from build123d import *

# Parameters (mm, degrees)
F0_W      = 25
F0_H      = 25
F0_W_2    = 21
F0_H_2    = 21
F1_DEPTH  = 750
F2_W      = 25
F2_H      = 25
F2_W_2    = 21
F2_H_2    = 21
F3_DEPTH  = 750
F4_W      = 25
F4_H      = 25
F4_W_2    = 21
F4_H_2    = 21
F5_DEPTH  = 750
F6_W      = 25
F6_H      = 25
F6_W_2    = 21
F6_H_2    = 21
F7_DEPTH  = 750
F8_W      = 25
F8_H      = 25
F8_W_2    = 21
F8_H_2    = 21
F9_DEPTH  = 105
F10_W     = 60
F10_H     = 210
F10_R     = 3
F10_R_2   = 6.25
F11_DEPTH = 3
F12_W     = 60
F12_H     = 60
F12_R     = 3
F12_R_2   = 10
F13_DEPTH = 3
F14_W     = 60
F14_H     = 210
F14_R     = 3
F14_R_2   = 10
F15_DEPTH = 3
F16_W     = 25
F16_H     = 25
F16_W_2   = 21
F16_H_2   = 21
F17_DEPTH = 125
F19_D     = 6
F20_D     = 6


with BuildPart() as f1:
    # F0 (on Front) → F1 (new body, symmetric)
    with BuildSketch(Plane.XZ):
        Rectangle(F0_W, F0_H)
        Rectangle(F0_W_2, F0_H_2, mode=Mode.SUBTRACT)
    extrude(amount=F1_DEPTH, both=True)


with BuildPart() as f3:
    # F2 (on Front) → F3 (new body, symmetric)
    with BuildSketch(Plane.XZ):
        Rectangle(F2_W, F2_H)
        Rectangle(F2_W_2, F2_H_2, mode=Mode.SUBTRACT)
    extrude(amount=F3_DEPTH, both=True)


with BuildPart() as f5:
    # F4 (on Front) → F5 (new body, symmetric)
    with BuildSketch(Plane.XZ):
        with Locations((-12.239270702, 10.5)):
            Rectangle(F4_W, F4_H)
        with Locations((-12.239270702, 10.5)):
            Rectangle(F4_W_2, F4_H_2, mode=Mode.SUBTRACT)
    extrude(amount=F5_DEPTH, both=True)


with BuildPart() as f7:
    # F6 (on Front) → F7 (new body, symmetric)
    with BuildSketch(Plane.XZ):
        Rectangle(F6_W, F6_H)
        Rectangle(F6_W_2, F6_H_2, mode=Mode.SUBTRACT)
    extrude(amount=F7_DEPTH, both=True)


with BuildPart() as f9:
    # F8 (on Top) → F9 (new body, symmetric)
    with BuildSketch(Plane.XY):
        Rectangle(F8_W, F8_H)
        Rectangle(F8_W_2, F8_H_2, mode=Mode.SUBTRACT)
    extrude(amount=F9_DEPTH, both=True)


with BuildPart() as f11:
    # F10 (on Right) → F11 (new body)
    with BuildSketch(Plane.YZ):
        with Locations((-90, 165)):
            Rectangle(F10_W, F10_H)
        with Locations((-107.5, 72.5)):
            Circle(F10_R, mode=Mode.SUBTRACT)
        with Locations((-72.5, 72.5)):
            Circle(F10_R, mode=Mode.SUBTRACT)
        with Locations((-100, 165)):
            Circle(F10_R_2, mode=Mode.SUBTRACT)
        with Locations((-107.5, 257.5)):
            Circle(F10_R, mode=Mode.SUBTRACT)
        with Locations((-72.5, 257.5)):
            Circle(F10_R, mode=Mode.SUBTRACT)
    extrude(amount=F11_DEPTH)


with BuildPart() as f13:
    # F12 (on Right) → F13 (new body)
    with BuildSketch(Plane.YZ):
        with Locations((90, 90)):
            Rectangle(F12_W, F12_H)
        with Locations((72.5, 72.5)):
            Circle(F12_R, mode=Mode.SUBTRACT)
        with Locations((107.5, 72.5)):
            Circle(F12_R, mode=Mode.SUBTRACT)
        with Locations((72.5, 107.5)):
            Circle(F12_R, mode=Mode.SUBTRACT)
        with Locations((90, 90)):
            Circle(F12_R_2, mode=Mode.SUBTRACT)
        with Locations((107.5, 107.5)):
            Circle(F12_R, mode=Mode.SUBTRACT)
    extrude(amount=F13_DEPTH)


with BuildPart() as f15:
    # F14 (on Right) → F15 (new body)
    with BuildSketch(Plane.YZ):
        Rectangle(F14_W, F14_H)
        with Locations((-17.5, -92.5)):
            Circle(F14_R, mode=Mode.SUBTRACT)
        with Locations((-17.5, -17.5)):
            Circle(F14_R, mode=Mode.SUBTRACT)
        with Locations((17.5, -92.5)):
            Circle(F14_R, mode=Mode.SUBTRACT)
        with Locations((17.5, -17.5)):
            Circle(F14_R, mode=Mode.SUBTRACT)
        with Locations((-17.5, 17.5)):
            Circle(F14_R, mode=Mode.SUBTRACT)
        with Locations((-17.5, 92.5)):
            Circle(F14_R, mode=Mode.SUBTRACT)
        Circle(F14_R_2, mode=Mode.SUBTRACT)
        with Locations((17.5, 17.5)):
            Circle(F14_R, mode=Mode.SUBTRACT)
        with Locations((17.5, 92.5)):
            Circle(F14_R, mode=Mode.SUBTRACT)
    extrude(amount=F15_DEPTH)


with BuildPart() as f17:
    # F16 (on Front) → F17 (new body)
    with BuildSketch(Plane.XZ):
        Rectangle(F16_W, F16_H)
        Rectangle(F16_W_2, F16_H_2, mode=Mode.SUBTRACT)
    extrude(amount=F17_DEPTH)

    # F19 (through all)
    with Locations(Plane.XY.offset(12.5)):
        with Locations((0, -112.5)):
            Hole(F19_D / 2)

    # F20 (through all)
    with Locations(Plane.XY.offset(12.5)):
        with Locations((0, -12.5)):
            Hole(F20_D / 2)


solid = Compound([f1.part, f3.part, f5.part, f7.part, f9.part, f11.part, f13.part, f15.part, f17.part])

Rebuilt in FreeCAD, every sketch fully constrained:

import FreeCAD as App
import Part
import Sketcher


def add_polygon(sketch, points):
    """Adds a closed chain of lines whose ends are joined by coincident constraints."""
    first, n = sketch.GeometryCount, len(points)
    for a, b in zip(points, points[1:] + points[:1]):
        sketch.addGeometry(Part.LineSegment(App.Vector(*a, 0), App.Vector(*b, 0)), False)
    for i in range(n):
        sketch.addConstraint(Sketcher.Constraint("Coincident", first + i, 2, first + (i + 1) % n, 1))

doc = App.newDocument("Part")
body = doc.addObject("PartDesign::Body", "Body")

# Sketch on XZ plane
sketch1 = body.newObject("Sketcher::SketchObject", "Sketch")
sketch1.AttachmentSupport = (doc.getObject("XZ_Plane"), [""])
sketch1.MapMode = "FlatFace"
add_polygon(sketch1, [(-12.5, 12.5), (-12.5, -12.5), (12.5, -12.5), (12.5, 12.5)])  # lines 0-3
add_polygon(sketch1, [(10.5, -10.5), (-10.5, -10.5), (-10.5, 10.5), (10.5, 10.5)])  # lines 4-7
sketch1.addConstraint([
    Sketcher.Constraint("Vertical", 0),
    Sketcher.Constraint("Horizontal", 1),
    Sketcher.Constraint("Vertical", 2),
    Sketcher.Constraint("Horizontal", 3),
    Sketcher.Constraint("Horizontal", 4),
    Sketcher.Constraint("Vertical", 5),
    Sketcher.Constraint("Horizontal", 6),
    Sketcher.Constraint("Vertical", 7),
    Sketcher.Constraint("Symmetric", 0, 2, 2, 2, -1, 1),
    Sketcher.Constraint("Symmetric", 4, 2, 6, 2, -1, 1),
    Sketcher.Constraint("Equal", 3, 0),
    Sketcher.Constraint("Equal", 6, 5),
    Sketcher.Constraint("DistanceX", 1, 1, 1, 2, 25.0),
    Sketcher.Constraint("DistanceX", 4, 2, 4, 1, 21.0),
])
pad1 = body.newObject("PartDesign::Pad", "Pad")
pad1.Profile = sketch1
pad1.Length = 1500
pad1.Midplane = True
body2 = doc.addObject("PartDesign::Body", "Body001")

# Sketch on XZ plane
sketch2 = body2.newObject("Sketcher::SketchObject", "Sketch001")
sketch2.AttachmentSupport = (doc.getObject("XZ_Plane001"), [""])
sketch2.MapMode = "FlatFace"
add_polygon(sketch2, [(-12.5, 12.5), (-12.5, -12.5), (12.5, -12.5), (12.5, 12.5)])  # lines 0-3
add_polygon(sketch2, [(10.5, -10.5), (-10.5, -10.5), (-10.5, 10.5), (10.5, 10.5)])  # lines 4-7
sketch2.addConstraint([
    Sketcher.Constraint("Vertical", 0),
    Sketcher.Constraint("Horizontal", 1),
    Sketcher.Constraint("Vertical", 2),
    Sketcher.Constraint("Horizontal", 3),
    Sketcher.Constraint("Horizontal", 4),
    Sketcher.Constraint("Vertical", 5),
    Sketcher.Constraint("Horizontal", 6),
    Sketcher.Constraint("Vertical", 7),
    Sketcher.Constraint("Symmetric", 0, 2, 2, 2, -1, 1),
    Sketcher.Constraint("Symmetric", 4, 2, 6, 2, -1, 1),
    Sketcher.Constraint("Equal", 3, 0),
    Sketcher.Constraint("Equal", 6, 5),
    Sketcher.Constraint("DistanceX", 1, 1, 1, 2, 25.0),
    Sketcher.Constraint("DistanceX", 4, 2, 4, 1, 21.0),
])
pad2 = body2.newObject("PartDesign::Pad", "Pad001")
pad2.Profile = sketch2
pad2.Length = 1500
pad2.Midplane = True
body3 = doc.addObject("PartDesign::Body", "Body002")

# Sketch on XZ plane
sketch3 = body3.newObject("Sketcher::SketchObject", "Sketch002")
sketch3.AttachmentSupport = (doc.getObject("XZ_Plane002"), [""])
sketch3.MapMode = "FlatFace"
add_polygon(sketch3, [(-24.739271, 23), (-24.739271, -2), (0.260729, -2), (0.260729, 23)])  # lines 0-3
add_polygon(sketch3, [(-1.739271, 0), (-22.739271, 0), (-22.739271, 21), (-1.739271, 21)])  # lines 4-7
sketch3.addConstraint([
    Sketcher.Constraint("Vertical", 0),
    Sketcher.Constraint("Horizontal", 1),
    Sketcher.Constraint("Vertical", 2),
    Sketcher.Constraint("Horizontal", 3),
    Sketcher.Constraint("Horizontal", 4),
    Sketcher.Constraint("Vertical", 5),
    Sketcher.Constraint("Horizontal", 6),
    Sketcher.Constraint("Vertical", 7),
    Sketcher.Constraint("PointOnObject", 4, 2, -1),
    Sketcher.Constraint("Equal", 3, 0),
    Sketcher.Constraint("Equal", 6, 5),
    Sketcher.Constraint("DistanceX", 1, 1, 1, 2, 25.0),
    Sketcher.Constraint("DistanceX", 4, 2, 4, 1, 21.0),
    Sketcher.Constraint("DistanceY", 0, 2, -1, 1, 2.0),
    Sketcher.Constraint("DistanceX", 0, 2, 4, 2, 2.0),
    Sketcher.Constraint("DistanceX", 0, 2, -1, 1, 24.739271),
])
pad3 = body3.newObject("PartDesign::Pad", "Pad002")
pad3.Profile = sketch3
pad3.Length = 1500
pad3.Midplane = True
body4 = doc.addObject("PartDesign::Body", "Body003")

# Sketch on XZ plane
sketch4 = body4.newObject("Sketcher::SketchObject", "Sketch003")
sketch4.AttachmentSupport = (doc.getObject("XZ_Plane003"), [""])
sketch4.MapMode = "FlatFace"
add_polygon(sketch4, [(-12.5, 12.5), (-12.5, -12.5), (12.5, -12.5), (12.5, 12.5)])  # lines 0-3
add_polygon(sketch4, [(10.5, -10.5), (-10.5, -10.5), (-10.5, 10.5), (10.5, 10.5)])  # lines 4-7
sketch4.addConstraint([
    Sketcher.Constraint("Vertical", 0),
    Sketcher.Constraint("Horizontal", 1),
    Sketcher.Constraint("Vertical", 2),
    Sketcher.Constraint("Horizontal", 3),
    Sketcher.Constraint("Horizontal", 4),
    Sketcher.Constraint("Vertical", 5),
    Sketcher.Constraint("Horizontal", 6),
    Sketcher.Constraint("Vertical", 7),
    Sketcher.Constraint("Symmetric", 0, 2, 2, 2, -1, 1),
    Sketcher.Constraint("Symmetric", 4, 2, 6, 2, -1, 1),
    Sketcher.Constraint("Equal", 3, 0),
    Sketcher.Constraint("Equal", 6, 5),
    Sketcher.Constraint("DistanceX", 1, 1, 1, 2, 25.0),
    Sketcher.Constraint("DistanceX", 4, 2, 4, 1, 21.0),
])
pad4 = body4.newObject("PartDesign::Pad", "Pad003")
pad4.Profile = sketch4
pad4.Length = 1500
pad4.Midplane = True
body5 = doc.addObject("PartDesign::Body", "Body004")

# Sketch on XY plane
sketch5 = body5.newObject("Sketcher::SketchObject", "Sketch004")
sketch5.AttachmentSupport = (doc.getObject("XY_Plane004"), [""])
sketch5.MapMode = "FlatFace"
add_polygon(sketch5, [(-12.5, 12.5), (-12.5, -12.5), (12.5, -12.5), (12.5, 12.5)])  # lines 0-3
add_polygon(sketch5, [(10.5, -10.5), (-10.5, -10.5), (-10.5, 10.5), (10.5, 10.5)])  # lines 4-7
sketch5.addConstraint([
    Sketcher.Constraint("Vertical", 0),
    Sketcher.Constraint("Horizontal", 1),
    Sketcher.Constraint("Vertical", 2),
    Sketcher.Constraint("Horizontal", 3),
    Sketcher.Constraint("Horizontal", 4),
    Sketcher.Constraint("Vertical", 5),
    Sketcher.Constraint("Horizontal", 6),
    Sketcher.Constraint("Vertical", 7),
    Sketcher.Constraint("Symmetric", 0, 2, 2, 2, -1, 1),
    Sketcher.Constraint("Symmetric", 4, 2, 6, 2, -1, 1),
    Sketcher.Constraint("Equal", 3, 0),
    Sketcher.Constraint("Equal", 6, 5),
    Sketcher.Constraint("DistanceX", 1, 1, 1, 2, 25.0),
    Sketcher.Constraint("DistanceX", 4, 2, 4, 1, 21.0),
])
pad5 = body5.newObject("PartDesign::Pad", "Pad004")
pad5.Profile = sketch5
pad5.Length = 210
pad5.Midplane = True
body6 = doc.addObject("PartDesign::Body", "Body005")

# Sketch on YZ plane
sketch6 = body6.newObject("Sketcher::SketchObject", "Sketch005")
sketch6.AttachmentSupport = (doc.getObject("YZ_Plane005"), [""])
sketch6.MapMode = "FlatFace"
add_polygon(sketch6, [(-120, 270), (-120, 60), (-60, 60), (-60, 270)])  # lines 0-3
sketch6.addGeometry(Part.Circle(App.Vector(-107.5, 72.5, 0), App.Vector(0, 0, 1), 3), False)  # 4
sketch6.addGeometry(Part.Circle(App.Vector(-72.5, 72.5, 0), App.Vector(0, 0, 1), 3), False)  # 5
sketch6.addGeometry(Part.Circle(App.Vector(-100, 165, 0), App.Vector(0, 0, 1), 6.25), False)  # 6
sketch6.addGeometry(Part.Circle(App.Vector(-107.5, 257.5, 0), App.Vector(0, 0, 1), 3), False)  # 7
sketch6.addGeometry(Part.Circle(App.Vector(-72.5, 257.5, 0), App.Vector(0, 0, 1), 3), False)  # 8
sketch6.addConstraint([
    Sketcher.Constraint("Vertical", 0),
    Sketcher.Constraint("Horizontal", 1),
    Sketcher.Constraint("Vertical", 2),
    Sketcher.Constraint("Horizontal", 3),
    Sketcher.Constraint("Equal", 4, 5),
    Sketcher.Constraint("Equal", 5, 7),
    Sketcher.Constraint("Equal", 7, 8),
    Sketcher.Constraint("Horizontal", 4, 3, 5, 3),
    Sketcher.Constraint("Horizontal", 7, 3, 8, 3),
    Sketcher.Constraint("Vertical", 4, 3, 7, 3),
    Sketcher.Constraint("Vertical", 5, 3, 8, 3),
    Sketcher.Constraint("Diameter", 4, 6.0),
    Sketcher.Constraint("Diameter", 6, 12.5),
    Sketcher.Constraint("DistanceX", 1, 1, 1, 2, 60.0),
    Sketcher.Constraint("DistanceY", 0, 2, 0, 1, 210.0),
    Sketcher.Constraint("DistanceX", 6, 3, -1, 1, 100.0),
    Sketcher.Constraint("DistanceY", -1, 1, 6, 3, 165.0),
    Sketcher.Constraint("DistanceX", 0, 2, -1, 1, 120.0),
    Sketcher.Constraint("DistanceY", -1, 1, 0, 2, 60.0),
    Sketcher.Constraint("DistanceX", 4, 3, 5, 3, 35.0),
    Sketcher.Constraint("DistanceY", 4, 3, 7, 3, 185.0),
    Sketcher.Constraint("DistanceX", 4, 3, -1, 1, 107.5),
    Sketcher.Constraint("DistanceY", -1, 1, 4, 3, 72.5),
])
pad6 = body6.newObject("PartDesign::Pad", "Pad005")
pad6.Profile = sketch6
pad6.Length = 3
body7 = doc.addObject("PartDesign::Body", "Body006")

# Sketch on YZ plane
sketch7 = body7.newObject("Sketcher::SketchObject", "Sketch006")
sketch7.AttachmentSupport = (doc.getObject("YZ_Plane006"), [""])
sketch7.MapMode = "FlatFace"
add_polygon(sketch7, [(60, 120), (60, 60), (120, 60), (120, 120)])  # lines 0-3
sketch7.addGeometry(Part.Circle(App.Vector(72.5, 72.5, 0), App.Vector(0, 0, 1), 3), False)  # 4
sketch7.addGeometry(Part.Circle(App.Vector(107.5, 72.5, 0), App.Vector(0, 0, 1), 3), False)  # 5
sketch7.addGeometry(Part.Circle(App.Vector(72.5, 107.5, 0), App.Vector(0, 0, 1), 3), False)  # 6
sketch7.addGeometry(Part.Circle(App.Vector(90, 90, 0), App.Vector(0, 0, 1), 10), False)  # 7
sketch7.addGeometry(Part.Circle(App.Vector(107.5, 107.5, 0), App.Vector(0, 0, 1), 3), False)  # 8
sketch7.addConstraint([
    Sketcher.Constraint("Vertical", 0),
    Sketcher.Constraint("Horizontal", 1),
    Sketcher.Constraint("Vertical", 2),
    Sketcher.Constraint("Horizontal", 3),
    Sketcher.Constraint("Equal", 4, 5),
    Sketcher.Constraint("Equal", 5, 6),
    Sketcher.Constraint("Equal", 6, 8),
    Sketcher.Constraint("Horizontal", 4, 3, 5, 3),
    Sketcher.Constraint("Horizontal", 6, 3, 8, 3),
    Sketcher.Constraint("Vertical", 4, 3, 6, 3),
    Sketcher.Constraint("Vertical", 5, 3, 8, 3),
    Sketcher.Constraint("Equal", 3, 0),
    Sketcher.Constraint("Diameter", 4, 6.0),
    Sketcher.Constraint("Diameter", 7, 20.0),
    Sketcher.Constraint("DistanceX", 1, 1, 1, 2, 60.0),
    Sketcher.Constraint("DistanceX", -1, 1, 7, 3, 90.0),
    Sketcher.Constraint("DistanceY", -1, 1, 7, 3, 90.0),
    Sketcher.Constraint("DistanceX", -1, 1, 0, 2, 60.0),
    Sketcher.Constraint("DistanceY", -1, 1, 0, 2, 60.0),
    Sketcher.Constraint("DistanceX", 4, 3, 5, 3, 35.0),
    Sketcher.Constraint("DistanceY", 4, 3, 6, 3, 35.0),
    Sketcher.Constraint("DistanceX", -1, 1, 4, 3, 72.5),
    Sketcher.Constraint("DistanceY", -1, 1, 4, 3, 72.5),
])
pad7 = body7.newObject("PartDesign::Pad", "Pad006")
pad7.Profile = sketch7
pad7.Length = 3
body8 = doc.addObject("PartDesign::Body", "Body007")

# Sketch on YZ plane
sketch8 = body8.newObject("Sketcher::SketchObject", "Sketch007")
sketch8.AttachmentSupport = (doc.getObject("YZ_Plane007"), [""])
sketch8.MapMode = "FlatFace"
add_polygon(sketch8, [(-30, 105), (-30, -105), (30, -105), (30, 105)])  # lines 0-3
sketch8.addGeometry(Part.Circle(App.Vector(-17.5, -92.5, 0), App.Vector(0, 0, 1), 3), False)  # 4
sketch8.addGeometry(Part.Circle(App.Vector(-17.5, -17.5, 0), App.Vector(0, 0, 1), 3), False)  # 5
sketch8.addGeometry(Part.Circle(App.Vector(17.5, -92.5, 0), App.Vector(0, 0, 1), 3), False)  # 6
sketch8.addGeometry(Part.Circle(App.Vector(17.5, -17.5, 0), App.Vector(0, 0, 1), 3), False)  # 7
sketch8.addGeometry(Part.Circle(App.Vector(-17.5, 17.5, 0), App.Vector(0, 0, 1), 3), False)  # 8
sketch8.addGeometry(Part.Circle(App.Vector(-17.5, 92.5, 0), App.Vector(0, 0, 1), 3), False)  # 9
sketch8.addGeometry(Part.Circle(App.Vector(0, 0, 0), App.Vector(0, 0, 1), 10), False)  # 10
sketch8.addGeometry(Part.Circle(App.Vector(17.5, 17.5, 0), App.Vector(0, 0, 1), 3), False)  # 11
sketch8.addGeometry(Part.Circle(App.Vector(17.5, 92.5, 0), App.Vector(0, 0, 1), 3), False)  # 12
sketch8.addConstraint([
    Sketcher.Constraint("Vertical", 0),
    Sketcher.Constraint("Horizontal", 1),
    Sketcher.Constraint("Vertical", 2),
    Sketcher.Constraint("Horizontal", 3),
    Sketcher.Constraint("Coincident", 10, 3, -1, 1),
    Sketcher.Constraint("Equal", 4, 5),
    Sketcher.Constraint("Equal", 5, 6),
    Sketcher.Constraint("Equal", 6, 7),
    Sketcher.Constraint("Equal", 7, 8),
    Sketcher.Constraint("Equal", 8, 9),
    Sketcher.Constraint("Equal", 9, 11),
    Sketcher.Constraint("Equal", 11, 12),
    Sketcher.Constraint("Symmetric", 7, 3, 8, 3, -1, 1),
    Sketcher.Constraint("Symmetric", 6, 3, 9, 3, -1, 1),
    Sketcher.Constraint("Symmetric", 5, 3, 11, 3, -1, 1),
    Sketcher.Constraint("Symmetric", 4, 3, 12, 3, -1, 1),
    Sketcher.Constraint("Symmetric", 0, 2, 2, 2, -1, 1),
    Sketcher.Constraint("Symmetric", 4, 3, 6, 3, -2),
    Sketcher.Constraint("Symmetric", 5, 3, 7, 3, -2),
    Sketcher.Constraint("Vertical", 4, 3, 5, 3),
    Sketcher.Constraint("Diameter", 4, 6.0),
    Sketcher.Constraint("Diameter", 10, 20.0),
    Sketcher.Constraint("DistanceX", 1, 1, 1, 2, 60.0),
    Sketcher.Constraint("DistanceY", 0, 2, 0, 1, 210.0),
    Sketcher.Constraint("DistanceY", 4, 3, 5, 3, 75.0),
    Sketcher.Constraint("DistanceX", 4, 3, 6, 3, 35.0),
    Sketcher.Constraint("DistanceY", 5, 3, 8, 3, 35.0),
])
pad8 = body8.newObject("PartDesign::Pad", "Pad007")
pad8.Profile = sketch8
pad8.Length = 3
body9 = doc.addObject("PartDesign::Body", "Body008")

# Sketch on XZ plane
sketch9 = body9.newObject("Sketcher::SketchObject", "Sketch008")
sketch9.AttachmentSupport = (doc.getObject("XZ_Plane008"), [""])
sketch9.MapMode = "FlatFace"
add_polygon(sketch9, [(-12.5, 12.5), (-12.5, -12.5), (12.5, -12.5), (12.5, 12.5)])  # lines 0-3
add_polygon(sketch9, [(10.5, -10.5), (-10.5, -10.5), (-10.5, 10.5), (10.5, 10.5)])  # lines 4-7
sketch9.addConstraint([
    Sketcher.Constraint("Vertical", 0),
    Sketcher.Constraint("Horizontal", 1),
    Sketcher.Constraint("Vertical", 2),
    Sketcher.Constraint("Horizontal", 3),
    Sketcher.Constraint("Horizontal", 4),
    Sketcher.Constraint("Vertical", 5),
    Sketcher.Constraint("Horizontal", 6),
    Sketcher.Constraint("Vertical", 7),
    Sketcher.Constraint("Symmetric", 0, 2, 2, 2, -1, 1),
    Sketcher.Constraint("Symmetric", 4, 2, 6, 2, -1, 1),
    Sketcher.Constraint("Equal", 3, 0),
    Sketcher.Constraint("Equal", 6, 5),
    Sketcher.Constraint("DistanceX", 1, 1, 1, 2, 25.0),
    Sketcher.Constraint("DistanceX", 4, 2, 4, 1, 21.0),
])
pad9 = body9.newObject("PartDesign::Pad", "Pad008")
pad9.Profile = sketch9
pad9.Length = 125

# Sketch on XY plane
sketch10 = body9.newObject("Sketcher::SketchObject", "Sketch009")
sketch10.AttachmentSupport = (doc.getObject("XY_Plane008"), [""])
sketch10.MapMode = "FlatFace"
sketch10.AttachmentOffset = App.Placement(App.Vector(0, 0, 12.5), App.Rotation())
sketch10.addGeometry(Part.Circle(App.Vector(0, -112.5, 0), App.Vector(0, 0, 1), 3), False)
sketch10.addConstraint([
    Sketcher.Constraint("PointOnObject", 0, 3, -2),
    Sketcher.Constraint("Diameter", 0, 6.0),
    Sketcher.Constraint("DistanceY", 0, 3, -1, 1, 112.5),
])
doc.recompute()
hole = body9.newObject("PartDesign::Hole", "Hole")
hole.Profile = sketch10
hole.ThreadType = "None"
hole.Diameter = 6
hole.DepthType = "ThroughAll"

# Sketch on XY plane
sketch11 = body9.newObject("Sketcher::SketchObject", "Sketch010")
sketch11.AttachmentSupport = (doc.getObject("XY_Plane008"), [""])
sketch11.MapMode = "FlatFace"
sketch11.AttachmentOffset = App.Placement(App.Vector(0, 0, 12.5), App.Rotation())
sketch11.addGeometry(Part.Circle(App.Vector(0, -12.5, 0), App.Vector(0, 0, 1), 3), False)
sketch11.addConstraint([
    Sketcher.Constraint("PointOnObject", 0, 3, -2),
    Sketcher.Constraint("Diameter", 0, 6.0),
    Sketcher.Constraint("DistanceY", 0, 3, -1, 1, 12.5),
])
doc.recompute()
hole2 = body9.newObject("PartDesign::Hole", "Hole001")
hole2.Profile = sketch11
hole2.ThreadType = "None"
hole2.Diameter = 6
hole2.DepthType = "ThroughAll"

doc.recompute()
